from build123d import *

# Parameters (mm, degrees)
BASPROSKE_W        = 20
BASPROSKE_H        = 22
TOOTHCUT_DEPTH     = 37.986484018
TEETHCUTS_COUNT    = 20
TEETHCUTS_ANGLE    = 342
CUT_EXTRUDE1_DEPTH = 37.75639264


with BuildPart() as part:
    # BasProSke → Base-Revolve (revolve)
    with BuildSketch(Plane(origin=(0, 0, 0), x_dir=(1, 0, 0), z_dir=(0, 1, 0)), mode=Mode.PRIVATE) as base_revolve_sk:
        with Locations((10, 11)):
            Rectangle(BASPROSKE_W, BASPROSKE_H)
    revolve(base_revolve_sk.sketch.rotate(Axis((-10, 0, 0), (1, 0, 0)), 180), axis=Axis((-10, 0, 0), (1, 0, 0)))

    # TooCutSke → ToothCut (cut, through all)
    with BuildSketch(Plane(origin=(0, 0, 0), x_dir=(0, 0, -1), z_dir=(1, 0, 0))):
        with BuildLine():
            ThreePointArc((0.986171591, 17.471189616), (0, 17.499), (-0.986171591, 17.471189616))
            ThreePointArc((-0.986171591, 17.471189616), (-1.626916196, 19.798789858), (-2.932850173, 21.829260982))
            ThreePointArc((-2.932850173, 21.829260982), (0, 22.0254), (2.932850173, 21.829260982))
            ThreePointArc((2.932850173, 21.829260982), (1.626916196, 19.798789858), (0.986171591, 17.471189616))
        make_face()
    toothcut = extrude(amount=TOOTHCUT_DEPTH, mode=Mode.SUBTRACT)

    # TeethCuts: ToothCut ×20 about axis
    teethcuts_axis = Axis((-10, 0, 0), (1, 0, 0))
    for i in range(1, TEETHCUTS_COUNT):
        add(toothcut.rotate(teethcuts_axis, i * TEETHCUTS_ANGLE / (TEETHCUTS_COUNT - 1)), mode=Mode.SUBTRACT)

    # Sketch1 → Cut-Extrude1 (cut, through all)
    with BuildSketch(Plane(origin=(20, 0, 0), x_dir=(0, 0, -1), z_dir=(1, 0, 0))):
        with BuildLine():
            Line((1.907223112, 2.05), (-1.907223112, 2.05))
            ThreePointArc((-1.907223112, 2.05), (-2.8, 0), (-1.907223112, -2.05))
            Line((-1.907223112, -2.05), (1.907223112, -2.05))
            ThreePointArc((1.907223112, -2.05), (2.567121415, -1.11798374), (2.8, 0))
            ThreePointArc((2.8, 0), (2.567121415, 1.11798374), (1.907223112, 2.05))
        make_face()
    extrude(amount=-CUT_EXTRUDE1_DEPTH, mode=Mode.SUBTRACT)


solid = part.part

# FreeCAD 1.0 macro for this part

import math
import FreeCAD as App
import Part
import Sketcher

V = App.Vector


def add_polygon(sketch, points):
    """Adds a closed chain of lines whose ends are joined by coincident constraints."""
    first, n = sketch.GeometryCount, len(points)
    for a, b in zip(points, points[1:] + points[:1]):
        sketch.addGeometry(Part.LineSegment(App.Vector(*a, 0), App.Vector(*b, 0)), False)
    for i in range(n):
        sketch.addConstraint(Sketcher.Constraint("Coincident", first + i, 2, first + (i + 1) % n, 1))

doc = App.newDocument("Part")
body = doc.addObject("PartDesign::Body", "Body")

# Sketch on XZ plane
sketch1 = doc.addObject("Sketcher::SketchObject", "Sketch")
body.addObject(sketch1)
sketch1.AttachmentSupport = (doc.XZ_Plane, [""])
sketch1.MapMode = "FlatFace"
add_polygon(sketch1, [(0, -22), (0, 0), (20, 0), (20, -22)])  # lines 0-3
sketch1.addConstraint([
    Sketcher.Constraint("Vertical", 0),
    Sketcher.Constraint("Horizontal", 1),
    Sketcher.Constraint("Vertical", 2),
    Sketcher.Constraint("Horizontal", 3),
    Sketcher.Constraint("Coincident", 0, 2, -1, 1),
    Sketcher.Constraint("DistanceX", 1, 1, 1, 2, 20.0),
    Sketcher.Constraint("DistanceY", 0, 1, 0, 2, 22.0),
])
revolution = doc.addObject("PartDesign::Revolution", "Revolution")
body.addObject(revolution)
revolution.Profile = sketch1
revolution.ReferenceAxis = (sketch1, ["H_Axis"])
revolution.Angle = 360

# Sketch on YZ plane
sketch2 = doc.addObject("Sketcher::SketchObject", "Sketch001")
body.addObject(sketch2)
sketch2.AttachmentSupport = (doc.YZ_Plane, [""])
sketch2.MapMode = "FlatFace"
sketch2.addGeometry([
    Part.ArcOfCircle(Part.Circle(V(0, 0, 0), V(0, 0, 1), 17.5), math.radians(-3.23), math.radians(3.23)),
    Part.ArcOfCircle(Part.Circle(V(16.5, -8.9, 0), V(0, 0, 1), 8), math.radians(49), math.radians(83)),
    Part.ArcOfCircle(Part.Circle(V(0, 0, 0), V(0, 0, 1), 22), math.radians(-7.65), math.radians(7.65)),
    Part.ArcOfCircle(Part.Circle(V(16.5, 8.9, 0), V(0, 0, 1), 8), math.radians(-83), math.radians(-49)),
], False)
sketch2.addConstraint([
    Sketcher.Constraint("Coincident", 0, 1, 1, 2),
    Sketcher.Constraint("Coincident", 1, 1, 2, 1),
    Sketcher.Constraint("Coincident", 2, 2, 3, 2),
    Sketcher.Constraint("Coincident", 3, 1, 0, 2),
    Sketcher.Constraint("Coincident", 0, 3, -1, 1),
    Sketcher.Constraint("Coincident", 2, 3, -1, 1),
    Sketcher.Constraint("Equal", 1, 3),
    Sketcher.Constraint("Symmetric", 1, 3, 3, 3, -1),
    Sketcher.Constraint("Radius", 1, 8.0),
    Sketcher.Constraint("Radius", 0, 17.499),
    Sketcher.Constraint("Radius", 2, 22.0254),
    Sketcher.Constraint("DistanceY", 1, 1, 2, 2, 5.8657),
    Sketcher.Constraint("DistanceX", -1, 1, 1, 3, 16.536031),
])
pocket1 = doc.addObject("PartDesign::Pocket", "Pocket")
body.addObject(pocket1)
pocket1.Profile = sketch2
pocket1.Type = "ThroughAll"
pocket1.Reversed = True
doc.recompute()

polarpattern = doc.addObject("PartDesign::PolarPattern", "PolarPattern")
body.addObject(polarpattern)
polarpattern.Originals = [pocket1]
polarpattern.Axis = (doc.X_Axis, [""])
polarpattern.Angle = 360
polarpattern.Occurrences = 20
body.Tip = polarpattern

# Sketch on YZ plane
sketch3 = doc.addObject("Sketcher::SketchObject", "Sketch002")
body.addObject(sketch3)
sketch3.AttachmentSupport = (doc.YZ_Plane, [""])
sketch3.MapMode = "FlatFace"
sketch3.AttachmentOffset = App.Placement(V(0, 0, 20), App.Rotation())
sketch3.addGeometry([
    Part.LineSegment(V(2, -1.9, 0), V(2, 1.9, 0)),  # 0
    Part.ArcOfCircle(Part.Circle(V(0, 0, 0), V(0, 0, 1), 2.8), math.radians(43), math.radians(137)),  # 1
    Part.LineSegment(V(-2, 1.9, 0), V(-2, -1.9, 0)),  # 2
    Part.ArcOfCircle(Part.Circle(V(0, 0, 0), V(0, 0, 1), 2.8), math.radians(-137), math.radians(-90)),  # 3
    Part.ArcOfCircle(Part.Circle(V(0, 0, 0), V(0, 0, 1), 2.8), math.radians(-90), math.radians(-43)),  # 4
], False)
sketch3.addConstraint([
    Sketcher.Constraint("Coincident", 0, 2, 1, 1),
    Sketcher.Constraint("Coincident", 1, 2, 2, 1),
    Sketcher.Constraint("Coincident", 2, 2, 3, 1),
    Sketcher.Constraint("Tangent", 3, 2, 4, 1),
    Sketcher.Constraint("Coincident", 4, 2, 0, 1),
    Sketcher.Constraint("Vertical", 0),
    Sketcher.Constraint("Vertical", 2),
    Sketcher.Constraint("Coincident", 1, 3, -1, 1),
    Sketcher.Constraint("Coincident", 3, 3, -1, 1),
    Sketcher.Constraint("Equal", 1, 3),
    Sketcher.Constraint("Equal", 3, 4),
    Sketcher.Constraint("PointOnObject", 3, 2, -2),
    Sketcher.Constraint("Horizontal", 0, 2, 1, 2),
    Sketcher.Constraint("Radius", 1, 2.8),
    Sketcher.Constraint("DistanceX", 1, 2, 0, 2, 4.1),
])
pocket2 = doc.addObject("PartDesign::Pocket", "Pocket001")
body.addObject(pocket2)
pocket2.Profile = sketch3
pocket2.Type = "ThroughAll"

doc.recompute()
